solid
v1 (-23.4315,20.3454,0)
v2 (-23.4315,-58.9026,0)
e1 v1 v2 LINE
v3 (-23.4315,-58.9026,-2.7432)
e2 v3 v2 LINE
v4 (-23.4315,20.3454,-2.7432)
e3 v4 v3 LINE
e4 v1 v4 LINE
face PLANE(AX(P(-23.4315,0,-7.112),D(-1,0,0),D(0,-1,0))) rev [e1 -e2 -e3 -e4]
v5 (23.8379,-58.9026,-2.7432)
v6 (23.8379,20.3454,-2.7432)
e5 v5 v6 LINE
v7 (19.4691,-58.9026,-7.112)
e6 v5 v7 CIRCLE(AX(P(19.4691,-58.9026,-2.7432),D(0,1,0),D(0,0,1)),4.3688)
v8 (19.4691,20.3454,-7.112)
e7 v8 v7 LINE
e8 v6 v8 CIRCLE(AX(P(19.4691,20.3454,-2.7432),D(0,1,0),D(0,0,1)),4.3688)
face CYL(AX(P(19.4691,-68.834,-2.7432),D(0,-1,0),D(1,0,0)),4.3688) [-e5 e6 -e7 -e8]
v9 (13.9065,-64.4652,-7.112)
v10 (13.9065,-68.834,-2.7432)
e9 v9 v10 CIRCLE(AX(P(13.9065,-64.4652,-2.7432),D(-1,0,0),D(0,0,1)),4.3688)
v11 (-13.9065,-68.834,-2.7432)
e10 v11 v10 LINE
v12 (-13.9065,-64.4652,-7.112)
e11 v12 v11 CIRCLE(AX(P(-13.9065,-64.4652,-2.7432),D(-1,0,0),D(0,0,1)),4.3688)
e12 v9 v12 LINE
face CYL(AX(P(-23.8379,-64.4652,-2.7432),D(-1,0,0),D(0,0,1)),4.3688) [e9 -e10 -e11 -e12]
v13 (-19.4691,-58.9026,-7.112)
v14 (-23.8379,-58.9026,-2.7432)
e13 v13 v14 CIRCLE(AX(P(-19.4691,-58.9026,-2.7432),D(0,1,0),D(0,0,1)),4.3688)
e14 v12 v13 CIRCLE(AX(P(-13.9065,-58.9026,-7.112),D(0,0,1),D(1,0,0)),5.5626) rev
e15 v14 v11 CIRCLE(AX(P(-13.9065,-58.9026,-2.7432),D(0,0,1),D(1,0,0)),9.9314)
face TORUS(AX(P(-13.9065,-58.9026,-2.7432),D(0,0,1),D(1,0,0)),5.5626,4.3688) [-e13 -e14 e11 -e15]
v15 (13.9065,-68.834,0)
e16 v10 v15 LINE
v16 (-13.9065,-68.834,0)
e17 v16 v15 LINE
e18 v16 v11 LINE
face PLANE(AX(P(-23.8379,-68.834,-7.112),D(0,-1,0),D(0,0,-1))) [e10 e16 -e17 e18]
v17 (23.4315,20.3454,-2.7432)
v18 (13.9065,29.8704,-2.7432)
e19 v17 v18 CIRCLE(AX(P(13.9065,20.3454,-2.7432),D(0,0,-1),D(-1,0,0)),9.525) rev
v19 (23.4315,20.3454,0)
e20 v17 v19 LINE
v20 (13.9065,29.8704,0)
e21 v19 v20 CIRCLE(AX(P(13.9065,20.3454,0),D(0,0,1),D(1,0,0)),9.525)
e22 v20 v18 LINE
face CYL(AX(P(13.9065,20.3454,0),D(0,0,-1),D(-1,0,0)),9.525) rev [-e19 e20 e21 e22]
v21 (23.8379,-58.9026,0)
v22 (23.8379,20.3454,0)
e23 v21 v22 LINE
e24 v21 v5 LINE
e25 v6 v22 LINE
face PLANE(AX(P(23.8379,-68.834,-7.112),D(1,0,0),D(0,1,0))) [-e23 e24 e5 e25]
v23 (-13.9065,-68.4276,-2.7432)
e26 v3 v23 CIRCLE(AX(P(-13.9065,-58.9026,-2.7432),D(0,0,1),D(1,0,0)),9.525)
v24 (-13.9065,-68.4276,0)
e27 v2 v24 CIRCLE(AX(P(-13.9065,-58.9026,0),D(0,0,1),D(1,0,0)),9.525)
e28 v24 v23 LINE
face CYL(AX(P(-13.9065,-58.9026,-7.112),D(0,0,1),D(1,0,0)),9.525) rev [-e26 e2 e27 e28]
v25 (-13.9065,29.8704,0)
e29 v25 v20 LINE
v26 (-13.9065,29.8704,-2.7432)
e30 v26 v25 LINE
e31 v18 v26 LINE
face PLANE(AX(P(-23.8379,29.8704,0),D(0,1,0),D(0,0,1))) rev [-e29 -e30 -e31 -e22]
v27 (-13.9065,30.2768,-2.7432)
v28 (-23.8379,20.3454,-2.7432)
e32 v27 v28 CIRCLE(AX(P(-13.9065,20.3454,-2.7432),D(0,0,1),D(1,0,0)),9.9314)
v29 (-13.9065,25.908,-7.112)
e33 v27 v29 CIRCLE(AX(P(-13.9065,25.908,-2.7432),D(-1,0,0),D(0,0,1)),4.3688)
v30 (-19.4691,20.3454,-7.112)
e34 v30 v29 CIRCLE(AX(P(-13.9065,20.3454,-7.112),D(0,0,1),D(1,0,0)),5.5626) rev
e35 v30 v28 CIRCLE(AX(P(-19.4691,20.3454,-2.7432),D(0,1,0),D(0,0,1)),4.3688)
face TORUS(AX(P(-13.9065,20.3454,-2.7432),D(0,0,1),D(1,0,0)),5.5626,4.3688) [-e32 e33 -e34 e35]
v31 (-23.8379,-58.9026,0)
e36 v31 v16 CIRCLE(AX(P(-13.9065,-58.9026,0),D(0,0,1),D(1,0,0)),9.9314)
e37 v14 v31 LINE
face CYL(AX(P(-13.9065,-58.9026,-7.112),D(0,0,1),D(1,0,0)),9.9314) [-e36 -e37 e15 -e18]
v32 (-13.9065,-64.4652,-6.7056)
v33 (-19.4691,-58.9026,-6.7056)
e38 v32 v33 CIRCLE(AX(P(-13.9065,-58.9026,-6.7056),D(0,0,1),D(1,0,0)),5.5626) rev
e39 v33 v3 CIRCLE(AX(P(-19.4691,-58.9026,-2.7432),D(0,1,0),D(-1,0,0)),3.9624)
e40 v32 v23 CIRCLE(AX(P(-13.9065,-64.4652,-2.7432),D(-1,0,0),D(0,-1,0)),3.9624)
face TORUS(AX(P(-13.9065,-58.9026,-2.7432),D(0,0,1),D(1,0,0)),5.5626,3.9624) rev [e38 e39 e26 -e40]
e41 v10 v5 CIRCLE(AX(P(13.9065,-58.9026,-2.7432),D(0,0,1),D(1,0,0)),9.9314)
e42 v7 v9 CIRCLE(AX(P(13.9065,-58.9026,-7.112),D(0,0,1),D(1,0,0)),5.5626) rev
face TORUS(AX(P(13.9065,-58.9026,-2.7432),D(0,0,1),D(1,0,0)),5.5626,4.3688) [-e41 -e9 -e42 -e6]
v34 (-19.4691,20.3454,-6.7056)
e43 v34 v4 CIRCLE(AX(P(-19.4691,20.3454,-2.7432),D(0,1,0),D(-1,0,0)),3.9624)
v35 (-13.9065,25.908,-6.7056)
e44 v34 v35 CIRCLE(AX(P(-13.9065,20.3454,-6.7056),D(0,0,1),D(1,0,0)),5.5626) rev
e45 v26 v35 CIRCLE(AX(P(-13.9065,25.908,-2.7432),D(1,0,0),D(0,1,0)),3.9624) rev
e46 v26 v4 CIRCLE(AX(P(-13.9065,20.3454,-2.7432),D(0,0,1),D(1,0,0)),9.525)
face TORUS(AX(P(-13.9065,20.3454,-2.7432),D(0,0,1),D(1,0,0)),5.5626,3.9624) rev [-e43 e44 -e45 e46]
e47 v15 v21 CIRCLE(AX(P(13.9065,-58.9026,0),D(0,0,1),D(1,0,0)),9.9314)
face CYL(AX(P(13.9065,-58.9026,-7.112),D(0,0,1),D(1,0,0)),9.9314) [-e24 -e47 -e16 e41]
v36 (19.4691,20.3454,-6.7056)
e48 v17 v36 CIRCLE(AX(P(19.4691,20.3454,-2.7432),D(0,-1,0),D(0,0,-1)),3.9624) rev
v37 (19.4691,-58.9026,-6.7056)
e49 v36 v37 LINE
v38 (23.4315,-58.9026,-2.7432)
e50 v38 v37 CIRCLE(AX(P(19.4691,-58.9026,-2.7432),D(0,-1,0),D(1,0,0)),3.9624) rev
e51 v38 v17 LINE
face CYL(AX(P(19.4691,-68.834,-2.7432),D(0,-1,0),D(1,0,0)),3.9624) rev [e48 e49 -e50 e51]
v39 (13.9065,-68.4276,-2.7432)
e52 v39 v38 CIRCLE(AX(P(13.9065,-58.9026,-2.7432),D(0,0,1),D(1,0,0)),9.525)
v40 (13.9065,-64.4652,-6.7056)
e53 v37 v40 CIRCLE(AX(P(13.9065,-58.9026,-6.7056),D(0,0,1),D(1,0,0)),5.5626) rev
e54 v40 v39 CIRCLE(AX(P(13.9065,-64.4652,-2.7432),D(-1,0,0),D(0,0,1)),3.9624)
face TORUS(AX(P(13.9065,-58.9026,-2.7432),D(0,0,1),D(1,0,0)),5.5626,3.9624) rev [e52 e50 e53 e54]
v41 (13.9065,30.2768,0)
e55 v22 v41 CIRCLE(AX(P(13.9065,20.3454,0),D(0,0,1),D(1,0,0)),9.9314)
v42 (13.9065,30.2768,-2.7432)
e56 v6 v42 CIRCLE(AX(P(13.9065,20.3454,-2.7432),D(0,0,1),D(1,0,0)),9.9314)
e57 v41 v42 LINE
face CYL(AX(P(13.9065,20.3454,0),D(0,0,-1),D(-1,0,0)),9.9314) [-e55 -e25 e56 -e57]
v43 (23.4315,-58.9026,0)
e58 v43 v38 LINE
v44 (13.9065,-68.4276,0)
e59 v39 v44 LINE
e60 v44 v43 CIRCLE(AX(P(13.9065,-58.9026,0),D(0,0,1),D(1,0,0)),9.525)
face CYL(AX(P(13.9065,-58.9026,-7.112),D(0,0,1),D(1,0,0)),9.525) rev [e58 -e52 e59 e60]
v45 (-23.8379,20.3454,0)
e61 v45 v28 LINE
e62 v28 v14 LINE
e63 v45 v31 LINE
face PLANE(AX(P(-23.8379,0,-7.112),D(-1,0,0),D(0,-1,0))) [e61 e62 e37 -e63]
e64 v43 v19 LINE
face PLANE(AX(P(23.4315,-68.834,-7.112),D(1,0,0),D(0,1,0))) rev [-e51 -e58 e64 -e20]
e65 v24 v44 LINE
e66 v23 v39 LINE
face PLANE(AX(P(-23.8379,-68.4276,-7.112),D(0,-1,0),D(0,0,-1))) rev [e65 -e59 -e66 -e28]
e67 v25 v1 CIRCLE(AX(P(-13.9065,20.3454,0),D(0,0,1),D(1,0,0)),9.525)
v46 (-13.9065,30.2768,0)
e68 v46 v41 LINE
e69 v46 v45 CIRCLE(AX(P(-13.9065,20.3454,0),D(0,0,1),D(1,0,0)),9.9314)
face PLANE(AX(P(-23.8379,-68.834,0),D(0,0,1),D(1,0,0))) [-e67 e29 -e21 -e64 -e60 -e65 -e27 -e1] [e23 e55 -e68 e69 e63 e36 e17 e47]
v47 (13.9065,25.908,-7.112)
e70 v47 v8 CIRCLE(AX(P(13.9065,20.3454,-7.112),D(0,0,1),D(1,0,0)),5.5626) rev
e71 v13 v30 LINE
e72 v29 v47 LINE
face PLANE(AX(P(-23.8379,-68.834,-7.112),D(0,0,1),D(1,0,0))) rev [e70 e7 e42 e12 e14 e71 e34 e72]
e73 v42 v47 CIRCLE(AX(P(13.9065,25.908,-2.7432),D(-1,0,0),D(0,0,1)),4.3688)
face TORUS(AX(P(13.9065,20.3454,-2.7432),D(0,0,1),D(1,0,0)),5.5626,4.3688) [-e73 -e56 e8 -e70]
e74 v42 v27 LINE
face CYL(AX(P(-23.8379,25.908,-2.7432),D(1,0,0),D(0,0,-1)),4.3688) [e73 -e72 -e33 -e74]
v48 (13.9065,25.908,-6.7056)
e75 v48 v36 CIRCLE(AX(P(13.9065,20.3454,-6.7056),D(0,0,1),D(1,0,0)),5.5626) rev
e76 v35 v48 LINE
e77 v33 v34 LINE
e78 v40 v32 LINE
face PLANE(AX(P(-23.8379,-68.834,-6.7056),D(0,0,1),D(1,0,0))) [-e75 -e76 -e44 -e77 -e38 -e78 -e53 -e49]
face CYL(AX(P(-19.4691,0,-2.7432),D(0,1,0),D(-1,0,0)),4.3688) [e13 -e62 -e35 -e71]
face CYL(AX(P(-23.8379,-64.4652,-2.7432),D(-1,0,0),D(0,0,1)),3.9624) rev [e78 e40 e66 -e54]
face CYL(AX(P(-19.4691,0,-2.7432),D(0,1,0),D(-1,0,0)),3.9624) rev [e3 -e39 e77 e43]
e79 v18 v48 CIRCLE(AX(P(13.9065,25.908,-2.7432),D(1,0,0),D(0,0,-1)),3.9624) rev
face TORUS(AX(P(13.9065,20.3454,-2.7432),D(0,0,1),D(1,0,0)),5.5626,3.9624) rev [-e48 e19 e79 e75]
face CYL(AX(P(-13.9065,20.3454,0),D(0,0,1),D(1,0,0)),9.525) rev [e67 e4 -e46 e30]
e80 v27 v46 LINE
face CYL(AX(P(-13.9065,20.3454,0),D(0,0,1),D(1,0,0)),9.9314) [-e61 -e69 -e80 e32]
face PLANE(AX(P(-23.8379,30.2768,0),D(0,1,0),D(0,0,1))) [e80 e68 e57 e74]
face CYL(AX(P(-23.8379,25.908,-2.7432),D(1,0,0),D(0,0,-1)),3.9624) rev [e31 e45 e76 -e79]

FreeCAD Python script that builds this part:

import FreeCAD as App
import Part
import Sketcher
from FreeCAD import Vector
Q = App.Units.Quantity


def edges_at(feature, points):
    """Names of the edges that pass closest to the given points."""
    edges = feature.Shape.Edges
    near = lambda p: min(range(len(edges)), key=lambda i: edges[i].distToShape(Part.Vertex(*p))[0])
    return sorted({f"Edge{near(p) + 1}" for p in points})


def faces_at(feature, points):
    """Names of the faces that lie closest to the given points."""
    faces = feature.Shape.Faces
    near = lambda p: min(range(len(faces)), key=lambda i: faces[i].distToShape(Part.Vertex(*p))[0])
    return sorted({f"Face{near(p) + 1}" for p in points})

doc = App.newDocument("Part")
params = doc.addObject("Spreadsheet::Sheet", "Params")
for row, (alias, value) in enumerate([
    ("sketch1_height", "2.71 in"),
    ("sketch1_width", "1.877 in"),
    ("pad1_length", "0.28 in"),
    ("sketch2_height", "0.28 in"),
    ("sketch2_width", "1.877 in"),
    ("pad2_length", "1.192 in"),
    ("fillet_radius", "0.391 in"),
    ("fillet2_radius", "0.172 in"),
    ("thickness_wall", "0.016 in"),
], start=1):
    params.set(f"A{row}", alias)
    params.set(f"B{row}", "=" + value)
    params.setAlias(f"B{row}", alias)

body = doc.addObject("PartDesign::Body", "Body")

# Sketch on XY plane
sketch1 = doc.addObject("Sketcher::SketchObject", "Sketch")
body.addObject(sketch1)
sketch1.AttachmentSupport = (doc.XY_Plane, [""])
sketch1.MapMode = "FlatFace"
sketch1.addGeometry(Part.LineSegment(Vector(-24, 0, 0), Vector(-24, -69, 0)), False)
sketch1.addGeometry(Part.LineSegment(Vector(-24, -69, 0), Vector(24, -69, 0)), False)
sketch1.addGeometry(Part.LineSegment(Vector(24, -69, 0), Vector(24, 0, 0)), False)
sketch1.addGeometry(Part.LineSegment(Vector(24, 0, 0), Vector(-24, 0, 0)), False)
sketch1.addConstraint(Sketcher.Constraint("Coincident", 0, 2, 1, 1))
sketch1.addConstraint(Sketcher.Constraint("Coincident", 1, 2, 2, 1))
sketch1.addConstraint(Sketcher.Constraint("Coincident", 2, 2, 3, 1))
sketch1.addConstraint(Sketcher.Constraint("Coincident", 3, 2, 0, 1))
sketch1.addConstraint(Sketcher.Constraint("Vertical", 0))
sketch1.addConstraint(Sketcher.Constraint("Horizontal", 1))
sketch1.addConstraint(Sketcher.Constraint("Vertical", 2))
sketch1.addConstraint(Sketcher.Constraint("Horizontal", 3))
sketch1.addConstraint(Sketcher.Constraint("Symmetric", 2, 2, 3, 2, -1, 1))
sketch1.addConstraint(Sketcher.Constraint("DistanceY", 0, 2, 0, 1, Q("2.71 in")))
sketch1.addConstraint(Sketcher.Constraint("DistanceX", 1, 1, 1, 2, Q("1.877 in")))
sketch1.setExpression("Constraints[9]", "Params.sketch1_height")
sketch1.setExpression("Constraints[10]", "Params.sketch1_width")
pad1 = doc.addObject("PartDesign::Pad", "Pad")
body.addObject(pad1)
pad1.Profile = sketch1
pad1.setExpression("Length", "Params.pad1_length")
pad1.Reversed = True

# Sketch on XZ plane
sketch2 = doc.addObject("Sketcher::SketchObject", "Sketch001")
body.addObject(sketch2)
sketch2.AttachmentSupport = (doc.XZ_Plane, [""])
sketch2.MapMode = "FlatFace"
sketch2.addGeometry(Part.LineSegment(Vector(-24, -7, 0), Vector(-24, 0, 0)), False)
sketch2.addGeometry(Part.LineSegment(Vector(-24, 0, 0), Vector(24, 0, 0)), False)
sketch2.addGeometry(Part.LineSegment(Vector(24, 0, 0), Vector(24, -7, 0)), False)
sketch2.addGeometry(Part.LineSegment(Vector(24, -7, 0), Vector(-24, -7, 0)), False)
sketch2.addConstraint(Sketcher.Constraint("Coincident", 0, 2, 1, 1))
sketch2.addConstraint(Sketcher.Constraint("Coincident", 1, 2, 2, 1))
sketch2.addConstraint(Sketcher.Constraint("Coincident", 2, 2, 3, 1))
sketch2.addConstraint(Sketcher.Constraint("Coincident", 3, 2, 0, 1))
sketch2.addConstraint(Sketcher.Constraint("Vertical", 0))
sketch2.addConstraint(Sketcher.Constraint("Horizontal", 1))
sketch2.addConstraint(Sketcher.Constraint("Vertical", 2))
sketch2.addConstraint(Sketcher.Constraint("Horizontal", 3))
sketch2.addConstraint(Sketcher.Constraint("Symmetric", 0, 2, 1, 2, -1, 1))
sketch2.addConstraint(Sketcher.Constraint("DistanceY", 0, 1, 0, 2, Q("0.28 in")))
sketch2.addConstraint(Sketcher.Constraint("DistanceX", 1, 1, 1, 2, Q("1.877 in")))
sketch2.setExpression("Constraints[9]", "Params.sketch2_height")
sketch2.setExpression("Constraints[10]", "Params.sketch2_width")
pad2 = doc.addObject("PartDesign::Pad", "Pad001")
body.addObject(pad2)
pad2.Profile = sketch2
pad2.setExpression("Length", "Params.pad2_length")
pad2.Reversed = True
doc.recompute()

fillet = doc.addObject("PartDesign::Fillet", "Fillet")
body.addObject(fillet)
fillet.Base = (pad2, edges_at(pad2, [
    (-23.838, 30.277, -3.556),
    (23.838, 30.277, -3.556),
    (23.838, -68.834, -3.556),
    (-23.838, -68.834, -3.556),
]))
fillet.setExpression("Radius", "Params.fillet_radius")
doc.recompute()

fillet2 = doc.addObject("PartDesign::Fillet", "Fillet001")
body.addObject(fillet2)
fillet2.Base = (fillet, edges_at(fillet, [
    (-23.838, -19.279, -7.112),
    (-20.929, -65.925, -7.112),
    (0, -68.834, -7.112),
    (23.838, -19.279, -7.112),
    (-20.929, 27.368, -7.112),
    (0, 30.277, -7.112),
    (20.929, 27.368, -7.112),
]))
fillet2.setExpression("Radius", "Params.fillet2_radius")
doc.recompute()

thickness = doc.addObject("PartDesign::Thickness", "Thickness")
body.addObject(thickness)
thickness.Base = (fillet2, faces_at(fillet2, [(0, -19.279, 0)]))
thickness.setExpression("Value", "Params.thickness_wall")
thickness.Reversed = True
thickness.Join = "Intersection"

doc.recompute()
